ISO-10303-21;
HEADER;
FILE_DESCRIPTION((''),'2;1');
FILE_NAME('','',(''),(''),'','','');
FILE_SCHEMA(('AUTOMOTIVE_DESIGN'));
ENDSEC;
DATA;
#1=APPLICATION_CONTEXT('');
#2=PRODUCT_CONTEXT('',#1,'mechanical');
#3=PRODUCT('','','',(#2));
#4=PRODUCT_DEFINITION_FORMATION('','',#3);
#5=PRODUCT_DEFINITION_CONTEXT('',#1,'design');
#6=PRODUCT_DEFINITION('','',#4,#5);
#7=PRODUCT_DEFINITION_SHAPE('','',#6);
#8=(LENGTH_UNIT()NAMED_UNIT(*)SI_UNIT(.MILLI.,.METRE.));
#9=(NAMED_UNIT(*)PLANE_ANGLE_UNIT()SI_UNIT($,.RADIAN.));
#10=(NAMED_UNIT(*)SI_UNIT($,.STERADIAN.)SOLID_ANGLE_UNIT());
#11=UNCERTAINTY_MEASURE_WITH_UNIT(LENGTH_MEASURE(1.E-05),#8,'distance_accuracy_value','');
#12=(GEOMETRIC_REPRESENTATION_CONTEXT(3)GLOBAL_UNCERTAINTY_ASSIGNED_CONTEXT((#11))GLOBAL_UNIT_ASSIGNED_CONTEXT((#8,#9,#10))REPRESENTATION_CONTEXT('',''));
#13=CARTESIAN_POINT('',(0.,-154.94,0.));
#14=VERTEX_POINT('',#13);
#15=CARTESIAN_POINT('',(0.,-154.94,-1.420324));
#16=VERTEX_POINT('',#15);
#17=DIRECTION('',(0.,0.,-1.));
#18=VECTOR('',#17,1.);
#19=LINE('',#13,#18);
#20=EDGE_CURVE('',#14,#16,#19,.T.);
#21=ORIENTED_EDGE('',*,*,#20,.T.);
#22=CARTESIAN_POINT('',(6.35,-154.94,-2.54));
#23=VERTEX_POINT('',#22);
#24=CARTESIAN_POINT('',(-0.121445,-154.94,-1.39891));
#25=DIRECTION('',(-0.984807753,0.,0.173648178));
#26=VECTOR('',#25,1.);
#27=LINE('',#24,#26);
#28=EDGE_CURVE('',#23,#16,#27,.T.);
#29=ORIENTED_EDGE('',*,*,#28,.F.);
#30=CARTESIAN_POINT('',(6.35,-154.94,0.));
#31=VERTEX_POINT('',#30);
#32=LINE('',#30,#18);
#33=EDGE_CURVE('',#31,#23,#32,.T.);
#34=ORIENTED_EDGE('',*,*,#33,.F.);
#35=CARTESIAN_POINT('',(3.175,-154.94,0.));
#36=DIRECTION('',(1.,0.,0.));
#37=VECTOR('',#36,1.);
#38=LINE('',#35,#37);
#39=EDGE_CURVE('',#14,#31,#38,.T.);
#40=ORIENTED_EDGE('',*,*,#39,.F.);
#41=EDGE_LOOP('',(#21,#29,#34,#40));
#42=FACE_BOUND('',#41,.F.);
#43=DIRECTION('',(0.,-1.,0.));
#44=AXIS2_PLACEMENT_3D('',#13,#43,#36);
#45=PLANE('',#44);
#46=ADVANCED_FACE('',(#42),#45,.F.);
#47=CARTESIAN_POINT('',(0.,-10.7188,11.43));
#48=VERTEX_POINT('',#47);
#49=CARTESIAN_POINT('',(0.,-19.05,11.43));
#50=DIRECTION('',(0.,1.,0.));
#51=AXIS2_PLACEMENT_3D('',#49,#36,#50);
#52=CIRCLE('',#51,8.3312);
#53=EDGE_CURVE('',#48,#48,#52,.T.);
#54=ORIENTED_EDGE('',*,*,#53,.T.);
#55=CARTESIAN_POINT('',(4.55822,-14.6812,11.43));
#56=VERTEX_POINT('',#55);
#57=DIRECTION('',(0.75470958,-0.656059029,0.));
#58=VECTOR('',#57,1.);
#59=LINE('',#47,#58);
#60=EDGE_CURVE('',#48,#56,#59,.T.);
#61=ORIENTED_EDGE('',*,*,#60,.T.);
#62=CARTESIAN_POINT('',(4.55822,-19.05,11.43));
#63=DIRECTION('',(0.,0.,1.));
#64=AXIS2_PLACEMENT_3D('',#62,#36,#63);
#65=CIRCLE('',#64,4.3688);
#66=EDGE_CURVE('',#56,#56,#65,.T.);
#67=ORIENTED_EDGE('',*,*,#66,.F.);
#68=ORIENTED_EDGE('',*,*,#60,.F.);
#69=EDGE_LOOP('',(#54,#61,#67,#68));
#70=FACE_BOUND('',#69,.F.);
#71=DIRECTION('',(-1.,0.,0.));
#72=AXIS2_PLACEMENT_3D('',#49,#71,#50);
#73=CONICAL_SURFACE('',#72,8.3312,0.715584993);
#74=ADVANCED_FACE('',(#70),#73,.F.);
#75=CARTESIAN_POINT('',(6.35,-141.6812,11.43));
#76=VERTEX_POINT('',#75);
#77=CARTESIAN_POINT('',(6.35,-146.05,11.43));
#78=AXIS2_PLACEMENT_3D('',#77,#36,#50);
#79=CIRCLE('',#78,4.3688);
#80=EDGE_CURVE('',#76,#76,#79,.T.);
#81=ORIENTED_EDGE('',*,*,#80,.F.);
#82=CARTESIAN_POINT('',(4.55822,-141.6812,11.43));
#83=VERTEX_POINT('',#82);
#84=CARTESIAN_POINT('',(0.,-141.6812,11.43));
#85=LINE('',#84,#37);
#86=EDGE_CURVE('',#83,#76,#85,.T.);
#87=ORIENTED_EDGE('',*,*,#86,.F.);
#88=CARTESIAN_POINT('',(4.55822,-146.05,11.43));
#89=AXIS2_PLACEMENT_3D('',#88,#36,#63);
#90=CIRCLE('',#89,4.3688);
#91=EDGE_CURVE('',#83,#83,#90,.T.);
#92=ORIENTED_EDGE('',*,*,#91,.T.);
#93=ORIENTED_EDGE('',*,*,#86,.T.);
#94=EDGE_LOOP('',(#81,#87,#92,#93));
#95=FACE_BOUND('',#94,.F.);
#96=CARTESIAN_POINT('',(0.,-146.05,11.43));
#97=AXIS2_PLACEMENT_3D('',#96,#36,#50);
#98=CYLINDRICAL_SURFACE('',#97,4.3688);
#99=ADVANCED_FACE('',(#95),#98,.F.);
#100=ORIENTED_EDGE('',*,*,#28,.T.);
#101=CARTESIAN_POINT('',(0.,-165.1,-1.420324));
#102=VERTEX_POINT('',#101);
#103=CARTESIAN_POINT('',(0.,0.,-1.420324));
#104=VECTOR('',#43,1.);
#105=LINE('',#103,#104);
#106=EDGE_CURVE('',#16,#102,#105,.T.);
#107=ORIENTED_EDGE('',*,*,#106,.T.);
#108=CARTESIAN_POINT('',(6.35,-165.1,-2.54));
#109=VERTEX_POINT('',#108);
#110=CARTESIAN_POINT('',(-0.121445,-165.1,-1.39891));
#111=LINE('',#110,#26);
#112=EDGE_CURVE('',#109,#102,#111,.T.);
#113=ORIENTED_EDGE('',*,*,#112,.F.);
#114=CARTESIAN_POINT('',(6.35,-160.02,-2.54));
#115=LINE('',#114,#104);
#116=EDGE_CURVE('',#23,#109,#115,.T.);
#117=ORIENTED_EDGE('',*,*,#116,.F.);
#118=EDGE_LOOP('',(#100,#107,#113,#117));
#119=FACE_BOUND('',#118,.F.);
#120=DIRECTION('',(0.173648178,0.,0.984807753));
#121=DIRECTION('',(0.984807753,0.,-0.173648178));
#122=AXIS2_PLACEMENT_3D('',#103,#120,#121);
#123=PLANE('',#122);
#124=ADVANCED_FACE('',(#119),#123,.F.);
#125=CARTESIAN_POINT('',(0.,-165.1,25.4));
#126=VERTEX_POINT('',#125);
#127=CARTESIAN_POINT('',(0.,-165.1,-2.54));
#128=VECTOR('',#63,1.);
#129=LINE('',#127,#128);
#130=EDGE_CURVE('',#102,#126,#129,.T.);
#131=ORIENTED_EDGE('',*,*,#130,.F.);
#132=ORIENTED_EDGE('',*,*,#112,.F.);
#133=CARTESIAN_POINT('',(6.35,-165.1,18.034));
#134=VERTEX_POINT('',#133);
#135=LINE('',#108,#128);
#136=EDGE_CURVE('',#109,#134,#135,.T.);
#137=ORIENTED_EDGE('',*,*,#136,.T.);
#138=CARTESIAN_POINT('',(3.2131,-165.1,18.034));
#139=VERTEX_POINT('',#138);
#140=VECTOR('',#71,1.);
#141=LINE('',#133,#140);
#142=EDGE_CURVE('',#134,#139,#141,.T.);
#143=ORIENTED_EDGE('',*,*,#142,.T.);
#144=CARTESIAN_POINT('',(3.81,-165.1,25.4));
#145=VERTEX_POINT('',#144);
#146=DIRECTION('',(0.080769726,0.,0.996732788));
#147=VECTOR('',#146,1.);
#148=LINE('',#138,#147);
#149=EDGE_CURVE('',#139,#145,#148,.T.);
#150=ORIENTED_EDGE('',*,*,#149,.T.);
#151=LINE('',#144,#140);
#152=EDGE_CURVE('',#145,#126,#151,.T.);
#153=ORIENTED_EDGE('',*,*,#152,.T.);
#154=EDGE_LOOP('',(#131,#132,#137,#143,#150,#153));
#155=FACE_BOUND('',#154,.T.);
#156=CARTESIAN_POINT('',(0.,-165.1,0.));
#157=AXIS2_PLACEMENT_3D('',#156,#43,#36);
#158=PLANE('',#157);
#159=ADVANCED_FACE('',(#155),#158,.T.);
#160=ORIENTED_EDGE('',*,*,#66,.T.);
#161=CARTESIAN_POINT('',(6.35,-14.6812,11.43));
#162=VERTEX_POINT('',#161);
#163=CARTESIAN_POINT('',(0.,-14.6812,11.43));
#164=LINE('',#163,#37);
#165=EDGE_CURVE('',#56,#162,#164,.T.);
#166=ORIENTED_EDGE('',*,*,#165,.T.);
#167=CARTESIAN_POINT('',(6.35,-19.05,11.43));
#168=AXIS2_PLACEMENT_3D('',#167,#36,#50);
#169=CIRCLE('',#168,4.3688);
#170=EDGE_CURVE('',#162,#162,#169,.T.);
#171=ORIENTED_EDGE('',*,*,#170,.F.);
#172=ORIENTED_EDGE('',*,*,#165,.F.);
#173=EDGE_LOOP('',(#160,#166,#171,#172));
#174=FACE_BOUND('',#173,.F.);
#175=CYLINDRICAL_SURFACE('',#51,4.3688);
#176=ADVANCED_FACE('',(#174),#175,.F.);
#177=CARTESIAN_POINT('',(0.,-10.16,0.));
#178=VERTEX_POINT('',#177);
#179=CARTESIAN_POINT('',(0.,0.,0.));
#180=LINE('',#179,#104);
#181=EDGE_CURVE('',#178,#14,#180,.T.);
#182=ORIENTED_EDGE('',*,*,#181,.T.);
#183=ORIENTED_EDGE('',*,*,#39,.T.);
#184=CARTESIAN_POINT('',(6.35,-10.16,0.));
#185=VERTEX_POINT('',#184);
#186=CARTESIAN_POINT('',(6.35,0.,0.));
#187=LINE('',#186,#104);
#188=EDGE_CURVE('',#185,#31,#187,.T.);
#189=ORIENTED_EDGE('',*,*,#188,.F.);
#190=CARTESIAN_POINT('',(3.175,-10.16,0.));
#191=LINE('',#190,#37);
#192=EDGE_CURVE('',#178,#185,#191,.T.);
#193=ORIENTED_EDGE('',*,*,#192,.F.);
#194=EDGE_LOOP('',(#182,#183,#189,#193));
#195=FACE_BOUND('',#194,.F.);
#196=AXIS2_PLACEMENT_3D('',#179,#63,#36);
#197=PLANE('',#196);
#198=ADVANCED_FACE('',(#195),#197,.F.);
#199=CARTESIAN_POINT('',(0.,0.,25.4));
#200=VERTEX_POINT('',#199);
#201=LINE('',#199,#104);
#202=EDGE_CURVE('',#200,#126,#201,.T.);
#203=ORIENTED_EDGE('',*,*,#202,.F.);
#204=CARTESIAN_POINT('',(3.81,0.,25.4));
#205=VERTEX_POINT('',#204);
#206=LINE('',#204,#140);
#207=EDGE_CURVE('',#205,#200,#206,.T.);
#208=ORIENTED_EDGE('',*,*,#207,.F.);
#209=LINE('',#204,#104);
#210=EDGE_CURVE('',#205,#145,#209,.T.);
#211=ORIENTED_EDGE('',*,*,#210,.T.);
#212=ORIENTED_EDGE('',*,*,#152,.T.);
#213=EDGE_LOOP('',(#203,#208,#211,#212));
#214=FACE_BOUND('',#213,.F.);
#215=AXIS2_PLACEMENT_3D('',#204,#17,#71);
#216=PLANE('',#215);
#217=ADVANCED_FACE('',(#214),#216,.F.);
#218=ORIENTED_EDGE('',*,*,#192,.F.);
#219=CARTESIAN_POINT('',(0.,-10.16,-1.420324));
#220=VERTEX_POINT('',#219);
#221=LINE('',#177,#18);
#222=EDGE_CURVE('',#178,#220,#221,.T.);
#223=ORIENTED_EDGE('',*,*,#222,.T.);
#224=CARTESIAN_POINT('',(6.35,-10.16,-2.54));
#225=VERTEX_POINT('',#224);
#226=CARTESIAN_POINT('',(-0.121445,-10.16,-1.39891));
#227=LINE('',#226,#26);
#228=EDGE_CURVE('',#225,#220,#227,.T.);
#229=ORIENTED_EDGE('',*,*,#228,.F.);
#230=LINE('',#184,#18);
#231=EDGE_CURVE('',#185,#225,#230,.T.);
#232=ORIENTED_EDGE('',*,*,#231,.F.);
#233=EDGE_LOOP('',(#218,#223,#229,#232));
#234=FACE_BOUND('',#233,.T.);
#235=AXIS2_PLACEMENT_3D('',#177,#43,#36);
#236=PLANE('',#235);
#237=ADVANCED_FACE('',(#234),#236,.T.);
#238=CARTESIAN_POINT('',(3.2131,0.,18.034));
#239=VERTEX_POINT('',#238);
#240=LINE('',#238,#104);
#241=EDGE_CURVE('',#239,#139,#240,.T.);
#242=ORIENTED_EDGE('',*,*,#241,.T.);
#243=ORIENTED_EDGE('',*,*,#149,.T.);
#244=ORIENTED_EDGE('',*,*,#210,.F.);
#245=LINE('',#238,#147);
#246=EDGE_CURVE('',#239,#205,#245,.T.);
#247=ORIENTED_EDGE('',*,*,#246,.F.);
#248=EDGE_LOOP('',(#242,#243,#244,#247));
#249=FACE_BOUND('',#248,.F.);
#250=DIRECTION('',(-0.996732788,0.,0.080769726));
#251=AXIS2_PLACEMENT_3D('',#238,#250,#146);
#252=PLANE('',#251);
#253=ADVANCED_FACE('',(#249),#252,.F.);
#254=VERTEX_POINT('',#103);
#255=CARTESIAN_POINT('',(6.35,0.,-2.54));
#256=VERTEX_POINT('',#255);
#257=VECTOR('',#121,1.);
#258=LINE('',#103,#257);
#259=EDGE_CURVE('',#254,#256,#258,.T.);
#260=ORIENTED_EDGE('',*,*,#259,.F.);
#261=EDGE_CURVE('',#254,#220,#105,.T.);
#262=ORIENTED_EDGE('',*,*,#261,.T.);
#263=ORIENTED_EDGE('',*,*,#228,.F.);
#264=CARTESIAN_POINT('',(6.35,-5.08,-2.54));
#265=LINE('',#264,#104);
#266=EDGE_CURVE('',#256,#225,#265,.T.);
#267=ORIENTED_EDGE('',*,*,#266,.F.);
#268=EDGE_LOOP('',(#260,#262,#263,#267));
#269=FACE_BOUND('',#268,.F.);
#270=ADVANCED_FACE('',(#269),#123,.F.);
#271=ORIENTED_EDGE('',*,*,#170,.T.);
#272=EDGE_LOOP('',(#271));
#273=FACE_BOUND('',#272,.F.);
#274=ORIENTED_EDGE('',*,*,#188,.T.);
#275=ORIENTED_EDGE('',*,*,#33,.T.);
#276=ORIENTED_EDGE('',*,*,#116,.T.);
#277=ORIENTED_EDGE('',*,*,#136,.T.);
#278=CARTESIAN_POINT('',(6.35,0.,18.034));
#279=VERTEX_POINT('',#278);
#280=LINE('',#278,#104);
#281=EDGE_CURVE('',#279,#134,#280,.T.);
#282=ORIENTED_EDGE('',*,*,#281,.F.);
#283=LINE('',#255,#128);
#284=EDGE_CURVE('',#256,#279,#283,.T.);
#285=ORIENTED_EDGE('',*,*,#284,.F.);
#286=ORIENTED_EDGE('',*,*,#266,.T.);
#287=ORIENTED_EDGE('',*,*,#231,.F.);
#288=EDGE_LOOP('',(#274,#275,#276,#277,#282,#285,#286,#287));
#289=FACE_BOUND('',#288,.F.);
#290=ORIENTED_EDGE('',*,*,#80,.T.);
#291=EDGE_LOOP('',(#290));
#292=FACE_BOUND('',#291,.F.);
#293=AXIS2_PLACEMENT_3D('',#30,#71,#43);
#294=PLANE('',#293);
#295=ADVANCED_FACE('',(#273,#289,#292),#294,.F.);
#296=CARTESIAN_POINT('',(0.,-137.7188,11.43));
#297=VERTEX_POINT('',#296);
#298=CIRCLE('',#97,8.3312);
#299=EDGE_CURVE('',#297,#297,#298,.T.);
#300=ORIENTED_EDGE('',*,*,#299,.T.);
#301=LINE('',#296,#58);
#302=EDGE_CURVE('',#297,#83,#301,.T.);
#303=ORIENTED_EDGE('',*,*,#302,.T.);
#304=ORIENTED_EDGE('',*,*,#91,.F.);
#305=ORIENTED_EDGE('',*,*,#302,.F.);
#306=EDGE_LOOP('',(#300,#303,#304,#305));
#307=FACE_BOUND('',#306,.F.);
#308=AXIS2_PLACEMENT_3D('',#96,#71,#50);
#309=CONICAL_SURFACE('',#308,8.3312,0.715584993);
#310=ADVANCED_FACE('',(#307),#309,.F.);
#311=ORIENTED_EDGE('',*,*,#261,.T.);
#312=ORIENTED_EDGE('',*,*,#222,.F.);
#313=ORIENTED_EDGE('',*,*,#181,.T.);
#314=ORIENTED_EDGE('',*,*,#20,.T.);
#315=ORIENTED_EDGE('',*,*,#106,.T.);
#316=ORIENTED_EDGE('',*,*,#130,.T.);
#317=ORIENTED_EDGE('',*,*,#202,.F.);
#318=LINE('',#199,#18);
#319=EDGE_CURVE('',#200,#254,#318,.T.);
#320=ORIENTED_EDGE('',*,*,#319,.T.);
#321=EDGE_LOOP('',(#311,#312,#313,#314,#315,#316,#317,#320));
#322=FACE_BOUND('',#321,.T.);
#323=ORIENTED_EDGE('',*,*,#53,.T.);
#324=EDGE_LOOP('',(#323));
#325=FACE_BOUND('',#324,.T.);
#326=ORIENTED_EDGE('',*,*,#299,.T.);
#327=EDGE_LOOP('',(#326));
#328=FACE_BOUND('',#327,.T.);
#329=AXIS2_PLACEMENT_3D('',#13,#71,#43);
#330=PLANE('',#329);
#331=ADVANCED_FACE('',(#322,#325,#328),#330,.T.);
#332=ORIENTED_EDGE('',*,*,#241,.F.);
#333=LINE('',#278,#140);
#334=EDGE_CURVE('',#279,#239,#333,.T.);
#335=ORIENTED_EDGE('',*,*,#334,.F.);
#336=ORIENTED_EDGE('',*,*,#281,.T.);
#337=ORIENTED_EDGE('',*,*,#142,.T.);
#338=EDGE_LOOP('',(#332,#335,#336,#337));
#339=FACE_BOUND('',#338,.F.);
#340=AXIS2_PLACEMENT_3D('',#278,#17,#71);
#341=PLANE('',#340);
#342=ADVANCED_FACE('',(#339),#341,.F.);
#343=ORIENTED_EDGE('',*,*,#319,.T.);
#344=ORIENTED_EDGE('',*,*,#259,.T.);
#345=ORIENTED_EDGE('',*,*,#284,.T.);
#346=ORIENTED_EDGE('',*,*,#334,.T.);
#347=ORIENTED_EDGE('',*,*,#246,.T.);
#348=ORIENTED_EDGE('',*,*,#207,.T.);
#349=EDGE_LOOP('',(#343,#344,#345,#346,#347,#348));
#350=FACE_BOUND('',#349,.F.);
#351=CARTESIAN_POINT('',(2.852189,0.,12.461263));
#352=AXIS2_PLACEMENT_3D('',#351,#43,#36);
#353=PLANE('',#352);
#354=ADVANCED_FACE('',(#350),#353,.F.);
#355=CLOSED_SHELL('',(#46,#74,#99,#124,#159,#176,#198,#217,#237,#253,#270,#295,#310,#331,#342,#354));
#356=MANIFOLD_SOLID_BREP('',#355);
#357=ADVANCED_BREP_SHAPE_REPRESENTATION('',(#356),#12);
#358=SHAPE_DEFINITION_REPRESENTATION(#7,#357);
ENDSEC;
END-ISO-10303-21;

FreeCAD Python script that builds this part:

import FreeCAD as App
import Part
import Sketcher

V = App.Vector
Q = App.Units.Quantity

doc = App.newDocument("Part")
body = doc.addObject("PartDesign::Body", "Body")

sketch1 = body.newObject("Sketcher::SketchObject", "Sketch")
sketch1.AttachmentSupport = (doc.getObject("XZ_Plane"), [""])
sketch1.MapMode = "FlatFace"
sketch1.addGeometry(Part.LineSegment(V(0, 25.4, 0), V(0, 0, 0)), False)
sketch1.addGeometry(Part.LineSegment(V(0, 0, 0), V(6.3, 0, 0)), False)
sketch1.addGeometry(Part.LineSegment(V(6.3, 0, 0), V(6.3, 18, 0)), False)
sketch1.addGeometry(Part.LineSegment(V(6.3, 18, 0), V(3.2, 18, 0)), False)
sketch1.addGeometry(Part.LineSegment(V(3.2, 18, 0), V(3.8, 25.4, 0)), False)
sketch1.addGeometry(Part.LineSegment(V(3.8, 25.4, 0), V(0, 25.4, 0)), False)
sketch1.addConstraint(Sketcher.Constraint("Coincident", 0, 2, 1, 1))
sketch1.addConstraint(Sketcher.Constraint("Coincident", 1, 2, 2, 1))
sketch1.addConstraint(Sketcher.Constraint("Coincident", 2, 2, 3, 1))
sketch1.addConstraint(Sketcher.Constraint("Coincident", 3, 2, 4, 1))
sketch1.addConstraint(Sketcher.Constraint("Coincident", 4, 2, 5, 1))
sketch1.addConstraint(Sketcher.Constraint("Coincident", 5, 2, 0, 1))
sketch1.addConstraint(Sketcher.Constraint("Vertical", 0))
sketch1.addConstraint(Sketcher.Constraint("Horizontal", 1))
sketch1.addConstraint(Sketcher.Constraint("Vertical", 2))
sketch1.addConstraint(Sketcher.Constraint("Horizontal", 3))
sketch1.addConstraint(Sketcher.Constraint("Horizontal", 5))
sketch1.addConstraint(Sketcher.Constraint("Coincident", 0, 2, -1, 1))
sketch1.addConstraint(Sketcher.Constraint("DistanceY", 0, 2, 0, 1, Q("1 in")))
sketch1.addConstraint(Sketcher.Constraint("DistanceX", 1, 1, 1, 2, Q("0.25 in")))
sketch1.addConstraint(Sketcher.Constraint("DistanceX", 5, 2, 5, 1, Q("0.15 in")))
sketch1.addConstraint(Sketcher.Constraint("DistanceY", 2, 1, 2, 2, Q("0.71 in")))
sketch1.addConstraint(Sketcher.Constraint("DistanceX", 3, 2, 3, 1, Q("0.1235 in")))
pad1 = body.newObject("PartDesign::Pad", "Pad")
pad1.Profile = sketch1
pad1.Length = Q("6.5 in")

sketch2 = body.newObject("Sketcher::SketchObject", "Sketch001")
sketch2.AttachmentSupport = (doc.getObject("YZ_Plane"), [""])
sketch2.MapMode = "FlatFace"
sketch2.addGeometry(Part.Circle(V(-19.1, 11.4, 0), V(0, 0, 1), 4.4), False)
sketch2.addGeometry(Part.Circle(V(-146.1, 11.4, 0), V(0, 0, 1), 4.4), False)
sketch2.addConstraint(Sketcher.Constraint("Equal", 0, 1))
sketch2.addConstraint(Sketcher.Constraint("Horizontal", 0, 3, 1, 3))
sketch2.addConstraint(Sketcher.Constraint("Diameter", 0, Q("0.344 in")))
sketch2.addConstraint(Sketcher.Constraint("DistanceX", 1, 3, 0, 3, Q("5 in")))
sketch2.addConstraint(Sketcher.Constraint("DistanceX", 0, 3, -1, 1, Q("0.75 in")))
sketch2.addConstraint(Sketcher.Constraint("DistanceY", -1, 1, 0, 3, Q("0.45 in")))
doc.recompute()
hole = body.newObject("PartDesign::Hole", "Hole")
hole.Profile = sketch2
hole.ThreadType = "None"
hole.Diameter = Q("0.344 in")
hole.DepthType = "ThroughAll"
hole.HoleCutType = "Countersink"
hole.HoleCutDiameter = Q("0.656 in")
hole.HoleCutCountersinkAngle = 82
hole.Reversed = True

sketch3 = body.newObject("Sketcher::SketchObject", "Sketch002")
sketch3.AttachmentSupport = (doc.getObject("XY_Plane"), [""])
sketch3.MapMode = "FlatFace"
sketch3.addGeometry(Part.LineSegment(V(0, -165, 0), V(0, -155, 0)), False)
sketch3.addGeometry(Part.LineSegment(V(0, -155, 0), V(6, -155, 0)), False)
sketch3.addGeometry(Part.LineSegment(V(6, -155, 0), V(6, -165, 0)), False)
sketch3.addGeometry(Part.LineSegment(V(6, -165, 0), V(0, -165, 0)), False)
sketch3.addGeometry(Part.LineSegment(V(0, -10, 0), V(0, 0, 0)), False)
sketch3.addGeometry(Part.LineSegment(V(0, 0, 0), V(6, 0, 0)), False)
sketch3.addGeometry(Part.LineSegment(V(6, 0, 0), V(6, -10, 0)), False)
sketch3.addGeometry(Part.LineSegment(V(6, -10, 0), V(0, -10, 0)), False)
sketch3.addConstraint(Sketcher.Constraint("Coincident", 0, 2, 1, 1))
sketch3.addConstraint(Sketcher.Constraint("Coincident", 1, 2, 2, 1))
sketch3.addConstraint(Sketcher.Constraint("Coincident", 2, 2, 3, 1))
sketch3.addConstraint(Sketcher.Constraint("Coincident", 3, 2, 0, 1))
sketch3.addConstraint(Sketcher.Constraint("Coincident", 4, 2, 5, 1))
sketch3.addConstraint(Sketcher.Constraint("Coincident", 5, 2, 6, 1))
sketch3.addConstraint(Sketcher.Constraint("Coincident", 6, 2, 7, 1))
sketch3.addConstraint(Sketcher.Constraint("Coincident", 7, 2, 4, 1))
sketch3.addConstraint(Sketcher.Constraint("Vertical", 0))
sketch3.addConstraint(Sketcher.Constraint("Horizontal", 1))
sketch3.addConstraint(Sketcher.Constraint("Vertical", 2))
sketch3.addConstraint(Sketcher.Constraint("Horizontal", 3))
sketch3.addConstraint(Sketcher.Constraint("Vertical", 4))
sketch3.addConstraint(Sketcher.Constraint("Horizontal", 5))
sketch3.addConstraint(Sketcher.Constraint("Vertical", 6))
sketch3.addConstraint(Sketcher.Constraint("Horizontal", 7))
sketch3.addConstraint(Sketcher.Constraint("Coincident", 4, 2, -1, 1))
sketch3.addConstraint(Sketcher.Constraint("PointOnObject", 0, 2, -2))
sketch3.addConstraint(Sketcher.Constraint("Vertical", 2, 2, 5, 2))
sketch3.addConstraint(Sketcher.Constraint("Equal", 2, 4))
sketch3.addConstraint(Sketcher.Constraint("DistanceY", 0, 1, 0, 2, Q("0.4 in")))
sketch3.addConstraint(Sketcher.Constraint("DistanceX", 1, 1, 1, 2, Q("0.25 in")))
sketch3.addConstraint(Sketcher.Constraint("DistanceY", 0, 2, -1, 1, Q("6.1 in")))
pad2 = body.newObject("PartDesign::Pad", "Pad001")
pad2.Profile = sketch3
pad2.Length = Q("0.1 in")
pad2.Reversed = True

sketch4 = body.newObject("Sketcher::SketchObject", "Sketch003")
sketch4.AttachmentSupport = (doc.getObject("XZ_Plane"), [""])
sketch4.MapMode = "FlatFace"
sketch4.addGeometry(Part.LineSegment(V(0, -1.4, 0), V(6.3, -2.5, 0)), False)
sketch4.addGeometry(Part.LineSegment(V(6.3, -2.5, 0), V(0, -2.5, 0)), False)
sketch4.addGeometry(Part.LineSegment(V(0, -2.5, 0), V(0, -1.4, 0)), False)
sketch4.addConstraint(Sketcher.Constraint("Coincident", 0, 2, 1, 1))
sketch4.addConstraint(Sketcher.Constraint("Coincident", 1, 2, 2, 1))
sketch4.addConstraint(Sketcher.Constraint("Coincident", 2, 2, 0, 1))
sketch4.addConstraint(Sketcher.Constraint("Horizontal", 1))
sketch4.addConstraint(Sketcher.Constraint("Vertical", 2))
sketch4.addConstraint(Sketcher.Constraint("PointOnObject", 1, 2, -2))
sketch4.addConstraint(Sketcher.Constraint("Angle", 0, Q("-10 deg")))
sketch4.addConstraint(Sketcher.Constraint("DistanceX", 1, 2, 1, 1, Q("0.25 in")))
sketch4.addConstraint(Sketcher.Constraint("DistanceY", 0, 2, -1, 1, Q("0.1 in")))
pocket1 = body.newObject("PartDesign::Pocket", "Pocket")
pocket1.Profile = sketch4
pocket1.Type = "ThroughAll"
pocket1.Reversed = True

doc.recompute()
